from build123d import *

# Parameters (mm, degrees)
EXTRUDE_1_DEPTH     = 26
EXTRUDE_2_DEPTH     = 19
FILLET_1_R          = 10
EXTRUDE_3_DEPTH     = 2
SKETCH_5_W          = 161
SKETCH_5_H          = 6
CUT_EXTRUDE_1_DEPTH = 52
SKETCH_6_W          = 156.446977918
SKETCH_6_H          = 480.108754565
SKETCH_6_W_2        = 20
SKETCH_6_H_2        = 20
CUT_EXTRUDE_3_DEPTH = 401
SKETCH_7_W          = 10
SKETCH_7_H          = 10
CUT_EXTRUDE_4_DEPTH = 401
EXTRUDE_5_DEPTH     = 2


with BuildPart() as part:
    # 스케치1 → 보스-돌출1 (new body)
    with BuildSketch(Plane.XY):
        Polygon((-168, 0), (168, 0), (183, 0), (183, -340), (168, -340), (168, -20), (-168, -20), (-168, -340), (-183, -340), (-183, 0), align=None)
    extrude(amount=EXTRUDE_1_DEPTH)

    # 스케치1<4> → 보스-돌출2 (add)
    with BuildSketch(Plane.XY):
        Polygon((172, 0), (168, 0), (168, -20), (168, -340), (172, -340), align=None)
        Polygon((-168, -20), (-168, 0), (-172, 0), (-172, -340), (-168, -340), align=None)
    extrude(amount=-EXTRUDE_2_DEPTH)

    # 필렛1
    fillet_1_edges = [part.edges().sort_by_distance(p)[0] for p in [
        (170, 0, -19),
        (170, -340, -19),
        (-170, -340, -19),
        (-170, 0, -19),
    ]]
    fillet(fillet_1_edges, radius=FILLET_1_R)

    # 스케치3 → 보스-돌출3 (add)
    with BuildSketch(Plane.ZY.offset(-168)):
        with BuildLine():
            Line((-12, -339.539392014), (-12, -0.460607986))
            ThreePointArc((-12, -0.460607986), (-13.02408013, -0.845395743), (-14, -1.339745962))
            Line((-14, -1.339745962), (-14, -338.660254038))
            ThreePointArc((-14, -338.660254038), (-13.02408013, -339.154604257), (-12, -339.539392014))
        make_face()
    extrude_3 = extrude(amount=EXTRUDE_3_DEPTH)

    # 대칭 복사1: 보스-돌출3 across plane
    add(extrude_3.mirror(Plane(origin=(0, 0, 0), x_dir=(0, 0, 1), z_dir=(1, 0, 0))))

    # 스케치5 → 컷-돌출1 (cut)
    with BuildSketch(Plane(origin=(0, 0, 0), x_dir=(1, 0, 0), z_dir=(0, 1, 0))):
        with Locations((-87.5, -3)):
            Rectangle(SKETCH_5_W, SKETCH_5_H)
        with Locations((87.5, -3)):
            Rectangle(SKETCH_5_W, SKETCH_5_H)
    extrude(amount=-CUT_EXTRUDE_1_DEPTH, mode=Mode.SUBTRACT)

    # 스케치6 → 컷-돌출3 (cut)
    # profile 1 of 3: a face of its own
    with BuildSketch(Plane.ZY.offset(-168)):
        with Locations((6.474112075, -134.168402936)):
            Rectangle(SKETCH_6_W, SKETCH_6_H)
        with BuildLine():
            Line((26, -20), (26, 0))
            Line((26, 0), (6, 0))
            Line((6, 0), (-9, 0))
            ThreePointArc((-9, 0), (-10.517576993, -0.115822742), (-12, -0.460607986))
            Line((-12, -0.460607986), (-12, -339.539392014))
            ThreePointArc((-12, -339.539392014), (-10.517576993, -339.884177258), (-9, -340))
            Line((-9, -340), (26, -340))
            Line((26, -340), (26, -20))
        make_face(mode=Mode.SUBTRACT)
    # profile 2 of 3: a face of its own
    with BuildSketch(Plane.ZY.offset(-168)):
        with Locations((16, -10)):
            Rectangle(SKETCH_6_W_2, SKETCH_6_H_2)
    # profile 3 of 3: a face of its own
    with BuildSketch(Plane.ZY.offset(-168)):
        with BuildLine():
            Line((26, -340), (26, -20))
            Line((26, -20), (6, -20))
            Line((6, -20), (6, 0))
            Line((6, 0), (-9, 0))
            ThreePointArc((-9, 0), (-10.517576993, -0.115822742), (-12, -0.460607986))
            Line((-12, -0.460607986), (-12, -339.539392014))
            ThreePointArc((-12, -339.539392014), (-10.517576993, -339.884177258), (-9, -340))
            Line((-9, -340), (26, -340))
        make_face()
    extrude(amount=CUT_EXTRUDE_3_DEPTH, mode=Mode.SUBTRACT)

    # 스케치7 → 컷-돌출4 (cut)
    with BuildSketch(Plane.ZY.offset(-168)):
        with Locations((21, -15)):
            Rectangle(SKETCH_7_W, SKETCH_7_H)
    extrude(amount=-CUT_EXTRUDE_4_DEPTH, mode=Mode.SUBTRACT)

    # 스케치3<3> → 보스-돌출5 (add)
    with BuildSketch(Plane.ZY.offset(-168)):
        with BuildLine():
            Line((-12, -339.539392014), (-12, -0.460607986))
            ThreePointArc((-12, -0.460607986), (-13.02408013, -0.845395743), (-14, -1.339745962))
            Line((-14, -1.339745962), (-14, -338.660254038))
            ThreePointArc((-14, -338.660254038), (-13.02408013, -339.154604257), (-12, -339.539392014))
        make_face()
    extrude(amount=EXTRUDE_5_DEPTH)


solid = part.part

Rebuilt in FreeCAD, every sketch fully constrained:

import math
import FreeCAD as App
import Part
import Sketcher
Q = App.Units.Quantity


def edges_at(feature, points):
    """Names of the edges that pass closest to the given points."""
    edges = feature.Shape.Edges
    near = lambda p: min(range(len(edges)), key=lambda i: edges[i].distToShape(Part.Vertex(*p))[0])
    return sorted({f"Edge{near(p) + 1}" for p in points})

doc = App.newDocument("Part")
body = doc.addObject("PartDesign::Body", "Body")

# Sketch on XY plane
sketch1 = doc.addObject("Sketcher::SketchObject", "Sketch")
body.addObject(sketch1)
sketch1.AttachmentSupport = (doc.XY_Plane, [""])
sketch1.MapMode = "FlatFace"
sketch1.addGeometry([
    Part.LineSegment(App.Vector(183, 0, 0), App.Vector(-183, 0, 0)),  # 0
    Part.LineSegment(App.Vector(-183, 0, 0), App.Vector(-183, -340, 0)),  # 1
    Part.LineSegment(App.Vector(-183, -340, 0), App.Vector(-168, -340, 0)),  # 2
    Part.LineSegment(App.Vector(-168, -340, 0), App.Vector(-168, -20, 0)),  # 3
    Part.LineSegment(App.Vector(-168, -20, 0), App.Vector(168, -20, 0)),  # 4
    Part.LineSegment(App.Vector(168, -20, 0), App.Vector(168, -340, 0)),  # 5
    Part.LineSegment(App.Vector(168, -340, 0), App.Vector(183, -340, 0)),  # 6
    Part.LineSegment(App.Vector(183, -340, 0), App.Vector(183, 0, 0)),  # 7
], False)
sketch1.addConstraint([
    Sketcher.Constraint("Coincident", 0, 2, 1, 1),
    Sketcher.Constraint("Coincident", 1, 2, 2, 1),
    Sketcher.Constraint("Coincident", 2, 2, 3, 1),
    Sketcher.Constraint("Coincident", 3, 2, 4, 1),
    Sketcher.Constraint("Coincident", 4, 2, 5, 1),
    Sketcher.Constraint("Coincident", 5, 2, 6, 1),
    Sketcher.Constraint("Coincident", 6, 2, 7, 1),
    Sketcher.Constraint("Coincident", 7, 2, 0, 1),
    Sketcher.Constraint("Horizontal", 0),
    Sketcher.Constraint("Vertical", 1),
    Sketcher.Constraint("Horizontal", 2),
    Sketcher.Constraint("Vertical", 3),
    Sketcher.Constraint("Horizontal", 4),
    Sketcher.Constraint("Vertical", 5),
    Sketcher.Constraint("Horizontal", 6),
    Sketcher.Constraint("Vertical", 7),
    Sketcher.Constraint("Symmetric", 0, 2, 7, 2, -1, 1),
    Sketcher.Constraint("Symmetric", 2, 2, 5, 2, -2),
    Sketcher.Constraint("DistanceX", 0, 2, 0, 1, Q("366 mm")),
    Sketcher.Constraint("DistanceX", 2, 1, 2, 2, Q("15 mm")),
    Sketcher.Constraint("DistanceY", 1, 2, 1, 1, Q("340 mm")),
    Sketcher.Constraint("DistanceY", 3, 1, 3, 2, Q("320 mm")),
])
pad1 = doc.addObject("PartDesign::Pad", "Pad")
body.addObject(pad1)
pad1.Profile = sketch1
pad1.Length = 26

# Sketch on XY plane
sketch2 = doc.addObject("Sketcher::SketchObject", "Sketch001")
body.addObject(sketch2)
sketch2.AttachmentSupport = (doc.XY_Plane, [""])
sketch2.MapMode = "FlatFace"
sketch2.addGeometry([
    Part.LineSegment(App.Vector(172, 0, 0), App.Vector(168, 0, 0)),  # 0
    Part.LineSegment(App.Vector(168, 0, 0), App.Vector(168, -340, 0)),  # 1
    Part.LineSegment(App.Vector(168, -340, 0), App.Vector(172, -340, 0)),  # 2
    Part.LineSegment(App.Vector(172, -340, 0), App.Vector(172, 0, 0)),  # 3
    Part.LineSegment(App.Vector(-168, 0, 0), App.Vector(-172, 0, 0)),  # 4
    Part.LineSegment(App.Vector(-172, 0, 0), App.Vector(-172, -340, 0)),  # 5
    Part.LineSegment(App.Vector(-172, -340, 0), App.Vector(-168, -340, 0)),  # 6
    Part.LineSegment(App.Vector(-168, -340, 0), App.Vector(-168, 0, 0)),  # 7
], False)
sketch2.addConstraint([
    Sketcher.Constraint("Coincident", 0, 2, 1, 1),
    Sketcher.Constraint("Coincident", 1, 2, 2, 1),
    Sketcher.Constraint("Coincident", 2, 2, 3, 1),
    Sketcher.Constraint("Coincident", 3, 2, 0, 1),
    Sketcher.Constraint("Coincident", 4, 2, 5, 1),
    Sketcher.Constraint("Coincident", 5, 2, 6, 1),
    Sketcher.Constraint("Coincident", 6, 2, 7, 1),
    Sketcher.Constraint("Coincident", 7, 2, 4, 1),
    Sketcher.Constraint("Horizontal", 0),
    Sketcher.Constraint("Vertical", 1),
    Sketcher.Constraint("Horizontal", 2),
    Sketcher.Constraint("Vertical", 3),
    Sketcher.Constraint("Horizontal", 4),
    Sketcher.Constraint("Vertical", 5),
    Sketcher.Constraint("Horizontal", 6),
    Sketcher.Constraint("Vertical", 7),
    Sketcher.Constraint("Symmetric", 3, 2, 4, 2, -1, 1),
    Sketcher.Constraint("Symmetric", 1, 2, 6, 2, -2),
    Sketcher.Constraint("PointOnObject", 0, 2, -1),
    Sketcher.Constraint("DistanceX", 0, 2, 0, 1, Q("4 mm")),
    Sketcher.Constraint("DistanceY", 1, 2, 1, 1, Q("340 mm")),
    Sketcher.Constraint("DistanceX", -1, 1, 0, 2, Q("168 mm")),
])
pad2 = doc.addObject("PartDesign::Pad", "Pad001")
body.addObject(pad2)
pad2.Profile = sketch2
pad2.Length = 19
pad2.Reversed = True
doc.recompute()

fillet = doc.addObject("PartDesign::Fillet", "Fillet")
body.addObject(fillet)
fillet.Base = (pad2, edges_at(pad2, [
    (170, 0, -19),
    (170, -340, -19),
    (-170, -340, -19),
    (-170, 0, -19),
]))
fillet.Radius = 10

# Sketch on YZ plane
sketch3 = doc.addObject("Sketcher::SketchObject", "Sketch002")
body.addObject(sketch3)
sketch3.AttachmentSupport = (doc.YZ_Plane, [""])
sketch3.MapMode = "FlatFace"
sketch3.AttachmentOffset = App.Placement(App.Vector(0, 0, 168), App.Rotation())
sketch3.addGeometry([
    Part.LineSegment(App.Vector(-339.5, -12, 0), App.Vector(-0.5, -12, 0)),
    Part.ArcOfCircle(Part.Circle(App.Vector(-10, -9, 0), App.Vector(0, 0, 1), 10), math.radians(-30), math.radians(-17.46)),
    Part.LineSegment(App.Vector(-1.3, -14, 0), App.Vector(-338.7, -14, 0)),
    Part.ArcOfCircle(Part.Circle(App.Vector(-330, -9, 0), App.Vector(0, 0, 1), 10), math.radians(-162.54), math.radians(-150)),
], False)
sketch3.addConstraint([
    Sketcher.Constraint("Coincident", 0, 2, 1, 2),
    Sketcher.Constraint("Coincident", 1, 1, 2, 1),
    Sketcher.Constraint("Coincident", 2, 2, 3, 2),
    Sketcher.Constraint("Coincident", 3, 1, 0, 1),
    Sketcher.Constraint("Horizontal", 0),
    Sketcher.Constraint("Horizontal", 2),
    Sketcher.Constraint("Equal", 1, 3),
    Sketcher.Constraint("Horizontal", 1, 3, 3, 3),
    Sketcher.Constraint("Radius", 1, Q("10 mm")),
    Sketcher.Constraint("DistanceX", 1, 3, -1, 1, Q("10 mm")),
    Sketcher.Constraint("DistanceY", 1, 3, -1, 1, Q("9 mm")),
    Sketcher.Constraint("DistanceX", 3, 3, -1, 1, Q("330 mm")),
    Sketcher.Constraint("DistanceY", 0, 2, -1, 1, Q("12 mm")),
    Sketcher.Constraint("DistanceY", 1, 1, -1, 1, Q("14 mm")),
])
pad3 = doc.addObject("PartDesign::Pad", "Pad002")
body.addObject(pad3)
pad3.Profile = sketch3
pad3.Length = 2
pad3.Reversed = True
doc.recompute()

mirrored = doc.addObject("PartDesign::Mirrored", "Mirrored")
body.addObject(mirrored)
mirrored.Originals = [pad3]
mirrored.MirrorPlane = (doc.YZ_Plane, [""])
body.Tip = mirrored

# Sketch on XZ plane
sketch4 = doc.addObject("Sketcher::SketchObject", "Sketch003")
body.addObject(sketch4)
sketch4.AttachmentSupport = (doc.XZ_Plane, [""])
sketch4.MapMode = "FlatFace"
sketch4.addGeometry([
    Part.LineSegment(App.Vector(-168, 0, 0), App.Vector(-168, 6, 0)),  # 0
    Part.LineSegment(App.Vector(-168, 6, 0), App.Vector(-7, 6, 0)),  # 1
    Part.LineSegment(App.Vector(-7, 6, 0), App.Vector(-7, 0, 0)),  # 2
    Part.LineSegment(App.Vector(-7, 0, 0), App.Vector(-168, 0, 0)),  # 3
    Part.LineSegment(App.Vector(7, 0, 0), App.Vector(7, 6, 0)),  # 4
    Part.LineSegment(App.Vector(7, 6, 0), App.Vector(168, 6, 0)),  # 5
    Part.LineSegment(App.Vector(168, 6, 0), App.Vector(168, 0, 0)),  # 6
    Part.LineSegment(App.Vector(168, 0, 0), App.Vector(7, 0, 0)),  # 7
], False)
sketch4.addConstraint([
    Sketcher.Constraint("Coincident", 0, 2, 1, 1),
    Sketcher.Constraint("Coincident", 1, 2, 2, 1),
    Sketcher.Constraint("Coincident", 2, 2, 3, 1),
    Sketcher.Constraint("Coincident", 3, 2, 0, 1),
    Sketcher.Constraint("Coincident", 4, 2, 5, 1),
    Sketcher.Constraint("Coincident", 5, 2, 6, 1),
    Sketcher.Constraint("Coincident", 6, 2, 7, 1),
    Sketcher.Constraint("Coincident", 7, 2, 4, 1),
    Sketcher.Constraint("Vertical", 0),
    Sketcher.Constraint("Horizontal", 1),
    Sketcher.Constraint("Vertical", 2),
    Sketcher.Constraint("Horizontal", 3),
    Sketcher.Constraint("Vertical", 4),
    Sketcher.Constraint("Horizontal", 5),
    Sketcher.Constraint("Vertical", 6),
    Sketcher.Constraint("Horizontal", 7),
    Sketcher.Constraint("Symmetric", 3, 2, 6, 2, -1, 1),
    Sketcher.Constraint("Symmetric", 1, 2, 4, 2, -2),
    Sketcher.Constraint("PointOnObject", 2, 2, -1),
    Sketcher.Constraint("DistanceX", 1, 1, 1, 2, Q("161 mm")),
    Sketcher.Constraint("DistanceY", 0, 1, 0, 2, Q("6 mm")),
    Sketcher.Constraint("DistanceX", 0, 2, -1, 1, Q("168 mm")),
])
pocket1 = doc.addObject("PartDesign::Pocket", "Pocket")
body.addObject(pocket1)
pocket1.Profile = sketch4
pocket1.Length = 52
pocket1.Reversed = True

# Sketch on YZ plane
sketch5 = doc.addObject("Sketcher::SketchObject", "Sketch004")
body.addObject(sketch5)
sketch5.AttachmentSupport = (doc.YZ_Plane, [""])
sketch5.MapMode = "FlatFace"
sketch5.AttachmentOffset = App.Placement(App.Vector(0, 0, 168), App.Rotation())
sketch5.addGeometry([
    Part.LineSegment(App.Vector(106, -72, 0), App.Vector(-374, -72, 0)),
    Part.LineSegment(App.Vector(-374, -72, 0), App.Vector(-374, 85, 0)),
    Part.LineSegment(App.Vector(-374, 85, 0), App.Vector(106, 85, 0)),
    Part.LineSegment(App.Vector(106, 85, 0), App.Vector(106, -72, 0)),
], False)
sketch5.addConstraint([
    Sketcher.Constraint("Coincident", 0, 2, 1, 1),
    Sketcher.Constraint("Coincident", 1, 2, 2, 1),
    Sketcher.Constraint("Coincident", 2, 2, 3, 1),
    Sketcher.Constraint("Coincident", 3, 2, 0, 1),
    Sketcher.Constraint("Horizontal", 0),
    Sketcher.Constraint("Vertical", 1),
    Sketcher.Constraint("Horizontal", 2),
    Sketcher.Constraint("Vertical", 3),
    Sketcher.Constraint("DistanceY", -1, 1, 1, 2, Q("84.697601 mm")),
    Sketcher.Constraint("DistanceX", 0, 2, 0, 1, Q("480.108755 mm")),
    Sketcher.Constraint("DistanceY", 1, 1, 1, 2, Q("156.446978 mm")),
    Sketcher.Constraint("DistanceX", 0, 2, -1, 1, Q("374.22278 mm")),
])
pocket2 = doc.addObject("PartDesign::Pocket", "Pocket001")
body.addObject(pocket2)
pocket2.Profile = sketch5
pocket2.Length = 401

# Sketch on YZ plane
sketch6 = doc.addObject("Sketcher::SketchObject", "Sketch005")
body.addObject(sketch6)
sketch6.AttachmentSupport = (doc.YZ_Plane, [""])
sketch6.MapMode = "FlatFace"
sketch6.AttachmentOffset = App.Placement(App.Vector(0, 0, 168), App.Rotation())
sketch6.addGeometry([
    Part.LineSegment(App.Vector(-10, 16, 0), App.Vector(-20, 16, 0)),
    Part.LineSegment(App.Vector(-20, 16, 0), App.Vector(-20, 26, 0)),
    Part.LineSegment(App.Vector(-20, 26, 0), App.Vector(-10, 26, 0)),
    Part.LineSegment(App.Vector(-10, 26, 0), App.Vector(-10, 16, 0)),
], False)
sketch6.addConstraint([
    Sketcher.Constraint("Coincident", 0, 2, 1, 1),
    Sketcher.Constraint("Coincident", 1, 2, 2, 1),
    Sketcher.Constraint("Coincident", 2, 2, 3, 1),
    Sketcher.Constraint("Coincident", 3, 2, 0, 1),
    Sketcher.Constraint("Horizontal", 0),
    Sketcher.Constraint("Vertical", 1),
    Sketcher.Constraint("Horizontal", 2),
    Sketcher.Constraint("Vertical", 3),
    Sketcher.Constraint("Equal", 2, 1),
    Sketcher.Constraint("DistanceX", 0, 2, 0, 1, Q("10 mm")),
    Sketcher.Constraint("DistanceX", 0, 2, -1, 1, Q("20 mm")),
    Sketcher.Constraint("DistanceY", -1, 1, 0, 2, Q("16 mm")),
])
pocket3 = doc.addObject("PartDesign::Pocket", "Pocket002")
body.addObject(pocket3)
pocket3.Profile = sketch6
pocket3.Length = 401
pocket3.Reversed = True

# Sketch on YZ plane
sketch7 = doc.addObject("Sketcher::SketchObject", "Sketch006")
body.addObject(sketch7)
sketch7.AttachmentSupport = (doc.YZ_Plane, [""])
sketch7.MapMode = "FlatFace"
sketch7.AttachmentOffset = App.Placement(App.Vector(0, 0, 168), App.Rotation())
sketch7.addGeometry([
    Part.LineSegment(App.Vector(-339.5, -12, 0), App.Vector(-0.5, -12, 0)),
    Part.ArcOfCircle(Part.Circle(App.Vector(-10, -9, 0), App.Vector(0, 0, 1), 10), math.radians(-30), math.radians(-17.46)),
    Part.LineSegment(App.Vector(-1.3, -14, 0), App.Vector(-338.7, -14, 0)),
    Part.ArcOfCircle(Part.Circle(App.Vector(-330, -9, 0), App.Vector(0, 0, 1), 10), math.radians(-162.54), math.radians(-150)),
], False)
sketch7.addConstraint([
    Sketcher.Constraint("Coincident", 0, 2, 1, 2),
    Sketcher.Constraint("Coincident", 1, 1, 2, 1),
    Sketcher.Constraint("Coincident", 2, 2, 3, 2),
    Sketcher.Constraint("Coincident", 3, 1, 0, 1),
    Sketcher.Constraint("Horizontal", 0),
    Sketcher.Constraint("Horizontal", 2),
    Sketcher.Constraint("Equal", 1, 3),
    Sketcher.Constraint("Horizontal", 1, 3, 3, 3),
    Sketcher.Constraint("Radius", 1, Q("10 mm")),
    Sketcher.Constraint("DistanceX", 1, 3, -1, 1, Q("10 mm")),
    Sketcher.Constraint("DistanceY", 1, 3, -1, 1, Q("9 mm")),
    Sketcher.Constraint("DistanceX", 3, 3, -1, 1, Q("330 mm")),
    Sketcher.Constraint("DistanceY", 0, 2, -1, 1, Q("12 mm")),
    Sketcher.Constraint("DistanceY", 1, 1, -1, 1, Q("14 mm")),
])
pad4 = doc.addObject("PartDesign::Pad", "Pad003")
body.addObject(pad4)
pad4.Profile = sketch7
pad4.Length = 2
pad4.Reversed = True

doc.recompute()
